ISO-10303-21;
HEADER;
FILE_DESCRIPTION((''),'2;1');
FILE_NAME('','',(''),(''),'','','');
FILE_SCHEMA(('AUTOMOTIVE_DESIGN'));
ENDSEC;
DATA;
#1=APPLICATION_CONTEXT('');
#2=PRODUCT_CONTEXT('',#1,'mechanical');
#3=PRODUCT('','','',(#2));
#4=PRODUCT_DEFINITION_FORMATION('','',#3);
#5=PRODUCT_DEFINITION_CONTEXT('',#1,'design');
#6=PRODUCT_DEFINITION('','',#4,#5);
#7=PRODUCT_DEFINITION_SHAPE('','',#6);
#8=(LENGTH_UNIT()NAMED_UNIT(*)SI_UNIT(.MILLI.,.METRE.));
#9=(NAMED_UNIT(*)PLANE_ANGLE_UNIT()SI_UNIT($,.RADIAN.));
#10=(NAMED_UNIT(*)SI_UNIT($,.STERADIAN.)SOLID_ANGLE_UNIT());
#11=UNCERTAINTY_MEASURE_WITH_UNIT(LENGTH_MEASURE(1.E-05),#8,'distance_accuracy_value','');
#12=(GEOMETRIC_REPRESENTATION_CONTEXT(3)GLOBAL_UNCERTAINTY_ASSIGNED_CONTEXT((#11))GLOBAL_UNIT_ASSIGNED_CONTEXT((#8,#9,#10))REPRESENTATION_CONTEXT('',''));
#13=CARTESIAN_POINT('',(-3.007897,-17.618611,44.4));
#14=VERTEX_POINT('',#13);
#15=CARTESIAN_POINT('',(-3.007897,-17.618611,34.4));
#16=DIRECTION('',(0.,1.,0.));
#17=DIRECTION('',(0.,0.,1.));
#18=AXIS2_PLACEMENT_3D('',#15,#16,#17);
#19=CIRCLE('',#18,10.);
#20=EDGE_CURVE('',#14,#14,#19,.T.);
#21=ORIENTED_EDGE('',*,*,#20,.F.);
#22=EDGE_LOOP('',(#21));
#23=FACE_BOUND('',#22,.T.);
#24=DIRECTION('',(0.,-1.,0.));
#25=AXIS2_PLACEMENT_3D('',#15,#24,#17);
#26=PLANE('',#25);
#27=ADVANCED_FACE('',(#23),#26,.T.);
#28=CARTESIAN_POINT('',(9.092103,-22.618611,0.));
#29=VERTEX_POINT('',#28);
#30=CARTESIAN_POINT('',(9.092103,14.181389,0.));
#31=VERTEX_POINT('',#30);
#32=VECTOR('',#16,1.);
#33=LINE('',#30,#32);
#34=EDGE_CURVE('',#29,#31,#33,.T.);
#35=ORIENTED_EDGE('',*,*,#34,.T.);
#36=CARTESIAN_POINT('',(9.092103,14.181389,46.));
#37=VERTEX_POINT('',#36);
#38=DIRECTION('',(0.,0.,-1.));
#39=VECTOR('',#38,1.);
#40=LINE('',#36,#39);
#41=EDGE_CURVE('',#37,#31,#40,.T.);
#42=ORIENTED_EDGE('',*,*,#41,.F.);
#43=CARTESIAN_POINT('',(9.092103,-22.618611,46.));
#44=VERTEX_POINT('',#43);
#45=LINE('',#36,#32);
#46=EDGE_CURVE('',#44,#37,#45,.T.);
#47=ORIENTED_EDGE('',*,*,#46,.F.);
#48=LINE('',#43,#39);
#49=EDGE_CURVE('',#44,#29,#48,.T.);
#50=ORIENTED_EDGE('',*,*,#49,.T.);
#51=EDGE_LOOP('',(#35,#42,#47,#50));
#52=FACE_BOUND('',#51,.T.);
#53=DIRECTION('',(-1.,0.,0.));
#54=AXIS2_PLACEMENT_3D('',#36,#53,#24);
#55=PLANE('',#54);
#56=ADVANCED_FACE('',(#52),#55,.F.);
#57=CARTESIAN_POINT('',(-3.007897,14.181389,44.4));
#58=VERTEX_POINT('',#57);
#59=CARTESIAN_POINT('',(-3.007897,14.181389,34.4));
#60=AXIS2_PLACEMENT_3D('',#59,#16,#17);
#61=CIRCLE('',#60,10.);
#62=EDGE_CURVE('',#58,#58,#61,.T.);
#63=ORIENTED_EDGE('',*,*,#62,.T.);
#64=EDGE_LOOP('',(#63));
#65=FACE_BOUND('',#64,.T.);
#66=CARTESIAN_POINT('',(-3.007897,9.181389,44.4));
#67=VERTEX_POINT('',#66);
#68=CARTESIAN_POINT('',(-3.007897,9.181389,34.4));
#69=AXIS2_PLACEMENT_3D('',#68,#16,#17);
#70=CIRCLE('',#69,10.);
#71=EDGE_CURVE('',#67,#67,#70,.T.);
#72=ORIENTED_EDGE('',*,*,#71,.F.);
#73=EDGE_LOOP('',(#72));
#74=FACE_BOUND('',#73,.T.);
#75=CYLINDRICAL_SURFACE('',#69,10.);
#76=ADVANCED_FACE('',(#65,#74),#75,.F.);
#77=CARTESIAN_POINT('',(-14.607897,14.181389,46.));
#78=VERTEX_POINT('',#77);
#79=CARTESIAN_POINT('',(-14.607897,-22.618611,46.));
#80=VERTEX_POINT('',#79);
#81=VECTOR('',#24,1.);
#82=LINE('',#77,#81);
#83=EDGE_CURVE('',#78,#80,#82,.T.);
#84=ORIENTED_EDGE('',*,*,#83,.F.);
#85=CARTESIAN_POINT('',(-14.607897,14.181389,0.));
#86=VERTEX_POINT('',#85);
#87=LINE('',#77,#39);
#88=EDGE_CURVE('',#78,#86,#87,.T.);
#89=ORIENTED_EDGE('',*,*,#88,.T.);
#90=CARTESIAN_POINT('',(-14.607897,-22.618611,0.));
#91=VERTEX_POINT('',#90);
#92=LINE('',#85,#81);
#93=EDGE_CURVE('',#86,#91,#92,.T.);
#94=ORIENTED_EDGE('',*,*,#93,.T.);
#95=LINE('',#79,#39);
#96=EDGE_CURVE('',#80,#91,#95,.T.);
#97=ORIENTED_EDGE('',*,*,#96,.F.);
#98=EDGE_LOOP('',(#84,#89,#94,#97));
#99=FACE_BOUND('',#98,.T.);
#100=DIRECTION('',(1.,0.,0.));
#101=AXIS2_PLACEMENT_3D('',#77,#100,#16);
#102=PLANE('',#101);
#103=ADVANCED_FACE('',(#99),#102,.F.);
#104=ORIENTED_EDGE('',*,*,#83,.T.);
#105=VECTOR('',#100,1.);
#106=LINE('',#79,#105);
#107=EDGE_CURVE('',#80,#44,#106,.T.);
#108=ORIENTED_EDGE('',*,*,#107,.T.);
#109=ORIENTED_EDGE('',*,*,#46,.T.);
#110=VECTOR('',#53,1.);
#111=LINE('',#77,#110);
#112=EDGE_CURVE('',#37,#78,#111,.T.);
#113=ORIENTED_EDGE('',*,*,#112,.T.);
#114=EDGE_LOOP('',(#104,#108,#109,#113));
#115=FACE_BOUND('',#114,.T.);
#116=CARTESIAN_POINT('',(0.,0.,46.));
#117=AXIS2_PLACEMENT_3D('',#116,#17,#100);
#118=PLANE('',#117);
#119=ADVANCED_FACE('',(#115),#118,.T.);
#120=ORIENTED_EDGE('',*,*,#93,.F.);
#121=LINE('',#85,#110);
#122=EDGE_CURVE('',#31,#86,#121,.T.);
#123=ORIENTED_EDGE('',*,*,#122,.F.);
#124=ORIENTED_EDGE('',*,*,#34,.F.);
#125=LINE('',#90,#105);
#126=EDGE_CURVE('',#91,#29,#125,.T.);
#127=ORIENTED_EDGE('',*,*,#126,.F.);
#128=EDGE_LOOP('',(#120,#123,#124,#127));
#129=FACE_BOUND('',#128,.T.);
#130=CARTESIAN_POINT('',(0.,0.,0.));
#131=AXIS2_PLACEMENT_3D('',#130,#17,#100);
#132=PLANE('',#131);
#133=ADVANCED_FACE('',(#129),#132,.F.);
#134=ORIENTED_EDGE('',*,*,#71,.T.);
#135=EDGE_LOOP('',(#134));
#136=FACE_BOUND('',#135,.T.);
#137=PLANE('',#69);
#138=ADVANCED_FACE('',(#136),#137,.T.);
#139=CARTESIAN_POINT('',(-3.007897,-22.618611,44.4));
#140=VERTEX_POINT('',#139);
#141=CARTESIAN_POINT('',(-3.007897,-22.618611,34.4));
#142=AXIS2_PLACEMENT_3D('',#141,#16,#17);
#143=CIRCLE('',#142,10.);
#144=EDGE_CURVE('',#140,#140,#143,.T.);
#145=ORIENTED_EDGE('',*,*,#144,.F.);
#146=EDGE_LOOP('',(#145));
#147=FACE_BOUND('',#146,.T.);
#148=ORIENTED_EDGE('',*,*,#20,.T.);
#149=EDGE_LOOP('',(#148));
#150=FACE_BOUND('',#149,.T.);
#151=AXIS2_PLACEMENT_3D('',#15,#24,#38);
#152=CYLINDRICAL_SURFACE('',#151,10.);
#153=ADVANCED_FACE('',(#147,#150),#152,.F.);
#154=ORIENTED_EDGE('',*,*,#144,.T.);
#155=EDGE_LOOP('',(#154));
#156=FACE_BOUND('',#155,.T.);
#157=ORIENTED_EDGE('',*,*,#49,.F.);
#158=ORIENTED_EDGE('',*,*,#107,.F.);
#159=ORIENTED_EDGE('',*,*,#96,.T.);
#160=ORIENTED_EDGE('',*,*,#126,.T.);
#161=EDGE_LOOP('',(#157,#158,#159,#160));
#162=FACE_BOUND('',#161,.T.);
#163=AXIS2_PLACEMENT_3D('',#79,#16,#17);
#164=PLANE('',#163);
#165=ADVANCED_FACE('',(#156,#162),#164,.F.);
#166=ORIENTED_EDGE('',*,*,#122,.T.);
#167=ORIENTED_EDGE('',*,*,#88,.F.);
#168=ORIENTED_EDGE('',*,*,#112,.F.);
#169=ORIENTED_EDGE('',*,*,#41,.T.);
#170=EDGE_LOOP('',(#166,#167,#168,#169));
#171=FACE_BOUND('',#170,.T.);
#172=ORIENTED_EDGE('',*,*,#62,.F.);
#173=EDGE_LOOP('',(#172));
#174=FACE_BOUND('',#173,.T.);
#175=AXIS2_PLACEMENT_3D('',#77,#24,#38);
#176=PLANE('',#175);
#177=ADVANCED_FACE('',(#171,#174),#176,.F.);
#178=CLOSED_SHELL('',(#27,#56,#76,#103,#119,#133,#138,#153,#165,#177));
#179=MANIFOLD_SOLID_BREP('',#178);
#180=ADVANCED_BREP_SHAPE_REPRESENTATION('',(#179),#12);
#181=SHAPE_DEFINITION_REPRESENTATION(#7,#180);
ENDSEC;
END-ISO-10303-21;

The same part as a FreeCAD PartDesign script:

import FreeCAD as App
import Part
import Sketcher

V = App.Vector
Q = App.Units.Quantity


def add_polygon(sketch, points):
    """Adds a closed chain of lines whose ends are joined by coincident constraints."""
    first, n = sketch.GeometryCount, len(points)
    for a, b in zip(points, points[1:] + points[:1]):
        sketch.addGeometry(Part.LineSegment(App.Vector(*a, 0), App.Vector(*b, 0)), False)
    for i in range(n):
        sketch.addConstraint(Sketcher.Constraint("Coincident", first + i, 2, first + (i + 1) % n, 1))

doc = App.newDocument("Part")
params = doc.addObject("Spreadsheet::Sheet", "Params")
for row, (alias, value) in enumerate([
    ("sketch1_width", "23.7 mm"),
    ("sketch1_height", "36.8 mm"),
    ("pad1_length", "46 mm"),
    ("sketch2_diameter", "20 mm"),
    ("pocket1_length", "5 mm"),
], start=1):
    params.set(f"A{row}", alias)
    params.set(f"B{row}", "=" + value)
    params.setAlias(f"B{row}", alias)

body = doc.addObject("PartDesign::Body", "Body")

sketch1 = body.newObject("Sketcher::SketchObject", "Sketch")
sketch1.AttachmentSupport = (doc.getObject("XY_Plane"), [""])
sketch1.MapMode = "FlatFace"
add_polygon(sketch1, [(-15, 14), (-15, -23), (9, -23), (9, 14)])
sketch1.addConstraint(Sketcher.Constraint("Vertical", 0))
sketch1.addConstraint(Sketcher.Constraint("Horizontal", 1))
sketch1.addConstraint(Sketcher.Constraint("Vertical", 2))
sketch1.addConstraint(Sketcher.Constraint("Horizontal", 3))
sketch1.addConstraint(Sketcher.Constraint("DistanceX", 1, 1, 1, 2, Q("23.7 mm")))
sketch1.addConstraint(Sketcher.Constraint("DistanceY", 0, 2, 0, 1, Q("36.8 mm")))
sketch1.addConstraint(Sketcher.Constraint("DistanceY", 0, 2, -1, 1, Q("22.618611 mm")))
sketch1.addConstraint(Sketcher.Constraint("DistanceX", 0, 2, -1, 1, Q("14.607897 mm")))
sketch1.setExpression("Constraints[8]", "Params.sketch1_width")
sketch1.setExpression("Constraints[9]", "Params.sketch1_height")
pad1 = body.newObject("PartDesign::Pad", "Pad")
pad1.Profile = sketch1
pad1.setExpression("Length", "Params.pad1_length")

sketch2 = body.newObject("Sketcher::SketchObject", "Sketch001")
sketch2.AttachmentSupport = (doc.getObject("XZ_Plane"), [""])
sketch2.MapMode = "FlatFace"
sketch2.AttachmentOffset = App.Placement(V(0, 0, -14.181389), App.Rotation())
sketch2.addGeometry(Part.Circle(V(-3, 34, 0), V(0, 0, 1), 10), False)
sketch2.addConstraint(Sketcher.Constraint("Diameter", 0, Q("20 mm")))
sketch2.addConstraint(Sketcher.Constraint("DistanceY", -1, 1, 0, 3, Q("34.4 mm")))
sketch2.addConstraint(Sketcher.Constraint("DistanceX", 0, 3, -1, 1, Q("3.007897 mm")))
sketch2.setExpression("Constraints[0]", "Params.sketch2_diameter")
pocket1 = body.newObject("PartDesign::Pocket", "Pocket")
pocket1.Profile = sketch2
pocket1.setExpression("Length", "Params.pocket1_length")
pocket1.Reversed = True
doc.recompute()

datumplane = body.newObject("PartDesign::Plane", "DatumPlane")
datumplane.AttachmentSupport = (doc.getObject("XZ_Plane"), [""])
datumplane.MapMode = "FlatFace"
datumplane.AttachmentOffset = App.Placement(V(0, 0, 4.218611), App.Rotation())
mirrored = body.newObject("PartDesign::Mirrored", "Mirrored")
mirrored.Originals = [pocket1]
mirrored.MirrorPlane = (datumplane, [""])
body.Tip = mirrored

doc.recompute()
